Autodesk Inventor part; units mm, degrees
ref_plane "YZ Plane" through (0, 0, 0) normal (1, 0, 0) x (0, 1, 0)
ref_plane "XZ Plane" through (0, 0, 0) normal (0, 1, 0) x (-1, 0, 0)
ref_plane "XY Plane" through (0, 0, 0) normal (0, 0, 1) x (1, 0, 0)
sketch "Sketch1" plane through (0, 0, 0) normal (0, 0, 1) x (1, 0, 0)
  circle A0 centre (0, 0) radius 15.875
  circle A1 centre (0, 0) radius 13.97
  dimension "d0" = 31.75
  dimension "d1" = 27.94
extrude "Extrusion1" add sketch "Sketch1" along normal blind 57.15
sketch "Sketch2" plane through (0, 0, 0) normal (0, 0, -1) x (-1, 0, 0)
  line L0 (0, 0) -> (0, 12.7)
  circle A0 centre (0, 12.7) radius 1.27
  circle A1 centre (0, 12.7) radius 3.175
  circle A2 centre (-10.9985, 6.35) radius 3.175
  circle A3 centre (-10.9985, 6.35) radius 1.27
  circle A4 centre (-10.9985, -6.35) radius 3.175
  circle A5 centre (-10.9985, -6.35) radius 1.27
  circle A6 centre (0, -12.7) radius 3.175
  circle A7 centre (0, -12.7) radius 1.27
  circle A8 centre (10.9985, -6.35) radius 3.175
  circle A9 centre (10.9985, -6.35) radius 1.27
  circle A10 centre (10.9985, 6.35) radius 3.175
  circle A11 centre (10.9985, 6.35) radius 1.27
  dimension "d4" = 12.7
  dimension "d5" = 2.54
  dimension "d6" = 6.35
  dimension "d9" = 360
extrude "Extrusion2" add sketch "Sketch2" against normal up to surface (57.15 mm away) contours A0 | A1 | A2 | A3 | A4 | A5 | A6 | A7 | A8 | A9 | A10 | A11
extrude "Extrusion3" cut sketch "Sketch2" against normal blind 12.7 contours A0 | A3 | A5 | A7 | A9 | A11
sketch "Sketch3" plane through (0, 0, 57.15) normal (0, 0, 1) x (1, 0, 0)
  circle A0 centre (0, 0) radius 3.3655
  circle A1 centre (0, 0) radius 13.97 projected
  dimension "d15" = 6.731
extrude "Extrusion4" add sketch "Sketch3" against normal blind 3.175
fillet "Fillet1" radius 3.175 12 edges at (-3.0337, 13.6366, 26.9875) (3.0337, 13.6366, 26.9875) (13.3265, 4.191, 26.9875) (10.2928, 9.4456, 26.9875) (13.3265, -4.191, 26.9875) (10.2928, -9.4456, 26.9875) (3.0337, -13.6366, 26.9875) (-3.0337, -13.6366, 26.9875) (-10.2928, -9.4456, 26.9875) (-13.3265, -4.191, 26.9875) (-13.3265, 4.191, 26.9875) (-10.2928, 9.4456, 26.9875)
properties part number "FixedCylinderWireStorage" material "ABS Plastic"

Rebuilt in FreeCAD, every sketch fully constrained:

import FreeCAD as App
import Part
import Sketcher
Q = App.Units.Quantity


def edges_at(feature, points):
    """Names of the edges that pass closest to the given points."""
    edges = feature.Shape.Edges
    near = lambda p: min(range(len(edges)), key=lambda i: edges[i].distToShape(Part.Vertex(*p))[0])
    return sorted({f"Edge{near(p) + 1}" for p in points})

doc = App.newDocument("Part")
body = doc.addObject("PartDesign::Body", "Body")

sketch1 = body.newObject("Sketcher::SketchObject", "Sketch")
sketch1.AttachmentSupport = (doc.getObject("XY_Plane"), [""])
sketch1.MapMode = "FlatFace"
sketch1.addGeometry(Part.Circle(App.Vector(0, 0, 0), App.Vector(0, 0, 1), 16), False)
sketch1.addGeometry(Part.Circle(App.Vector(0, 0, 0), App.Vector(0, 0, 1), 14), False)
sketch1.addConstraint(Sketcher.Constraint("Coincident", 0, 3, -1, 1))
sketch1.addConstraint(Sketcher.Constraint("Coincident", 1, 3, -1, 1))
sketch1.addConstraint(Sketcher.Constraint("Diameter", 1, Q("1.1 in")))
sketch1.addConstraint(Sketcher.Constraint("Diameter", 0, Q("1.25 in")))
pad1 = body.newObject("PartDesign::Pad", "Pad")
pad1.Profile = sketch1
pad1.Length = Q("2.25 in")

sketch2 = body.newObject("Sketcher::SketchObject", "Sketch001")
sketch2.AttachmentSupport = (doc.getObject("XY_Plane"), [""])
sketch2.MapMode = "FlatFace"
sketch2.addGeometry(Part.Circle(App.Vector(0, 12.7, 0), App.Vector(0, 0, 1), 3.2), False)
sketch2.addGeometry(Part.Circle(App.Vector(11, 6.3, 0), App.Vector(0, 0, 1), 3.2), False)
sketch2.addGeometry(Part.Circle(App.Vector(11, -6.3, 0), App.Vector(0, 0, 1), 3.2), False)
sketch2.addGeometry(Part.Circle(App.Vector(0, -12.7, 0), App.Vector(0, 0, 1), 3.2), False)
sketch2.addGeometry(Part.Circle(App.Vector(-11, -6.3, 0), App.Vector(0, 0, 1), 3.2), False)
sketch2.addGeometry(Part.Circle(App.Vector(-11, 6.3, 0), App.Vector(0, 0, 1), 3.2), False)
sketch2.addConstraint(Sketcher.Constraint("Equal", 0, 1))
sketch2.addConstraint(Sketcher.Constraint("Equal", 1, 2))
sketch2.addConstraint(Sketcher.Constraint("Equal", 2, 3))
sketch2.addConstraint(Sketcher.Constraint("Equal", 3, 4))
sketch2.addConstraint(Sketcher.Constraint("Equal", 4, 5))
sketch2.addConstraint(Sketcher.Constraint("Symmetric", 0, 3, 3, 3, -1, 1))
sketch2.addConstraint(Sketcher.Constraint("Symmetric", 1, 3, 4, 3, -1, 1))
sketch2.addConstraint(Sketcher.Constraint("Symmetric", 2, 3, 5, 3, -1, 1))
sketch2.addConstraint(Sketcher.Constraint("Symmetric", 2, 3, 4, 3, -2))
sketch2.addConstraint(Sketcher.Constraint("PointOnObject", 0, 3, -2))
sketch2.addConstraint(Sketcher.Constraint("Diameter", 0, Q("0.25 in")))
sketch2.addConstraint(Sketcher.Constraint("DistanceY", -1, 1, 0, 3, Q("0.5 in")))
sketch2.addConstraint(Sketcher.Constraint("DistanceY", 2, 3, 1, 3, Q("0.5 in")))
sketch2.addConstraint(Sketcher.Constraint("DistanceX", -1, 1, 1, 3, Q("0.433 in")))
pad2 = body.newObject("PartDesign::Pad", "Pad001")
pad2.Profile = sketch2
pad2.Length = Q("2.25 in")

sketch3 = body.newObject("Sketcher::SketchObject", "Sketch002")
sketch3.AttachmentSupport = (doc.getObject("XY_Plane"), [""])
sketch3.MapMode = "FlatFace"
sketch3.addGeometry(Part.Circle(App.Vector(0, 12.7, 0), App.Vector(0, 0, 1), 1.3), False)
sketch3.addGeometry(Part.Circle(App.Vector(11, 6.3, 0), App.Vector(0, 0, 1), 1.3), False)
sketch3.addGeometry(Part.Circle(App.Vector(11, -6.3, 0), App.Vector(0, 0, 1), 1.3), False)
sketch3.addGeometry(Part.Circle(App.Vector(0, -12.7, 0), App.Vector(0, 0, 1), 1.3), False)
sketch3.addGeometry(Part.Circle(App.Vector(-11, -6.3, 0), App.Vector(0, 0, 1), 1.3), False)
sketch3.addGeometry(Part.Circle(App.Vector(-11, 6.3, 0), App.Vector(0, 0, 1), 1.3), False)
sketch3.addConstraint(Sketcher.Constraint("Equal", 0, 1))
sketch3.addConstraint(Sketcher.Constraint("Equal", 1, 2))
sketch3.addConstraint(Sketcher.Constraint("Equal", 2, 3))
sketch3.addConstraint(Sketcher.Constraint("Equal", 3, 4))
sketch3.addConstraint(Sketcher.Constraint("Equal", 4, 5))
sketch3.addConstraint(Sketcher.Constraint("Symmetric", 0, 3, 3, 3, -1, 1))
sketch3.addConstraint(Sketcher.Constraint("Symmetric", 1, 3, 4, 3, -1, 1))
sketch3.addConstraint(Sketcher.Constraint("Symmetric", 2, 3, 5, 3, -1, 1))
sketch3.addConstraint(Sketcher.Constraint("Symmetric", 2, 3, 4, 3, -2))
sketch3.addConstraint(Sketcher.Constraint("PointOnObject", 0, 3, -2))
sketch3.addConstraint(Sketcher.Constraint("Diameter", 0, Q("0.1 in")))
sketch3.addConstraint(Sketcher.Constraint("DistanceY", -1, 1, 0, 3, Q("0.5 in")))
sketch3.addConstraint(Sketcher.Constraint("DistanceY", 2, 3, 1, 3, Q("0.5 in")))
sketch3.addConstraint(Sketcher.Constraint("DistanceX", -1, 1, 1, 3, Q("0.433 in")))
pocket1 = body.newObject("PartDesign::Pocket", "Pocket")
pocket1.Profile = sketch3
pocket1.Length = Q("0.5 in")
pocket1.Reversed = True

sketch4 = body.newObject("Sketcher::SketchObject", "Sketch003")
sketch4.AttachmentSupport = (doc.getObject("XY_Plane"), [""])
sketch4.MapMode = "FlatFace"
sketch4.AttachmentOffset = App.Placement(App.Vector(0, 0, 2.25 * 25.4), App.Rotation())
sketch4.addGeometry(Part.Circle(App.Vector(0, 0, 0), App.Vector(0, 0, 1), 14), False)
sketch4.addGeometry(Part.Circle(App.Vector(0, 0, 0), App.Vector(0, 0, 1), 3.4), False)
sketch4.addConstraint(Sketcher.Constraint("Coincident", 0, 3, -1, 1))
sketch4.addConstraint(Sketcher.Constraint("Coincident", 1, 3, -1, 1))
sketch4.addConstraint(Sketcher.Constraint("Diameter", 1, Q("0.265 in")))
sketch4.addConstraint(Sketcher.Constraint("Diameter", 0, Q("1.1 in")))
pad3 = body.newObject("PartDesign::Pad", "Pad002")
pad3.Profile = sketch4
pad3.Length = Q("0.125 in")
pad3.Reversed = True
doc.recompute()

fillet = body.newObject("PartDesign::Fillet", "Fillet")
fillet.Base = (pad3, edges_at(pad3, [
    (-3.034, 13.637, 26.988),
    (3.034, 13.637, 26.988),
    (13.326, 4.191, 26.988),
    (10.293, 9.446, 26.988),
    (13.326, -4.191, 26.988),
    (10.293, -9.446, 26.988),
    (3.034, -13.637, 26.988),
    (-3.034, -13.637, 26.988),
    (-10.293, -9.446, 26.988),
    (-13.326, -4.191, 26.988),
    (-13.326, 4.191, 26.988),
    (-10.293, 9.446, 26.988),
]))
fillet.Radius = Q("0.125 in")

doc.recompute()
